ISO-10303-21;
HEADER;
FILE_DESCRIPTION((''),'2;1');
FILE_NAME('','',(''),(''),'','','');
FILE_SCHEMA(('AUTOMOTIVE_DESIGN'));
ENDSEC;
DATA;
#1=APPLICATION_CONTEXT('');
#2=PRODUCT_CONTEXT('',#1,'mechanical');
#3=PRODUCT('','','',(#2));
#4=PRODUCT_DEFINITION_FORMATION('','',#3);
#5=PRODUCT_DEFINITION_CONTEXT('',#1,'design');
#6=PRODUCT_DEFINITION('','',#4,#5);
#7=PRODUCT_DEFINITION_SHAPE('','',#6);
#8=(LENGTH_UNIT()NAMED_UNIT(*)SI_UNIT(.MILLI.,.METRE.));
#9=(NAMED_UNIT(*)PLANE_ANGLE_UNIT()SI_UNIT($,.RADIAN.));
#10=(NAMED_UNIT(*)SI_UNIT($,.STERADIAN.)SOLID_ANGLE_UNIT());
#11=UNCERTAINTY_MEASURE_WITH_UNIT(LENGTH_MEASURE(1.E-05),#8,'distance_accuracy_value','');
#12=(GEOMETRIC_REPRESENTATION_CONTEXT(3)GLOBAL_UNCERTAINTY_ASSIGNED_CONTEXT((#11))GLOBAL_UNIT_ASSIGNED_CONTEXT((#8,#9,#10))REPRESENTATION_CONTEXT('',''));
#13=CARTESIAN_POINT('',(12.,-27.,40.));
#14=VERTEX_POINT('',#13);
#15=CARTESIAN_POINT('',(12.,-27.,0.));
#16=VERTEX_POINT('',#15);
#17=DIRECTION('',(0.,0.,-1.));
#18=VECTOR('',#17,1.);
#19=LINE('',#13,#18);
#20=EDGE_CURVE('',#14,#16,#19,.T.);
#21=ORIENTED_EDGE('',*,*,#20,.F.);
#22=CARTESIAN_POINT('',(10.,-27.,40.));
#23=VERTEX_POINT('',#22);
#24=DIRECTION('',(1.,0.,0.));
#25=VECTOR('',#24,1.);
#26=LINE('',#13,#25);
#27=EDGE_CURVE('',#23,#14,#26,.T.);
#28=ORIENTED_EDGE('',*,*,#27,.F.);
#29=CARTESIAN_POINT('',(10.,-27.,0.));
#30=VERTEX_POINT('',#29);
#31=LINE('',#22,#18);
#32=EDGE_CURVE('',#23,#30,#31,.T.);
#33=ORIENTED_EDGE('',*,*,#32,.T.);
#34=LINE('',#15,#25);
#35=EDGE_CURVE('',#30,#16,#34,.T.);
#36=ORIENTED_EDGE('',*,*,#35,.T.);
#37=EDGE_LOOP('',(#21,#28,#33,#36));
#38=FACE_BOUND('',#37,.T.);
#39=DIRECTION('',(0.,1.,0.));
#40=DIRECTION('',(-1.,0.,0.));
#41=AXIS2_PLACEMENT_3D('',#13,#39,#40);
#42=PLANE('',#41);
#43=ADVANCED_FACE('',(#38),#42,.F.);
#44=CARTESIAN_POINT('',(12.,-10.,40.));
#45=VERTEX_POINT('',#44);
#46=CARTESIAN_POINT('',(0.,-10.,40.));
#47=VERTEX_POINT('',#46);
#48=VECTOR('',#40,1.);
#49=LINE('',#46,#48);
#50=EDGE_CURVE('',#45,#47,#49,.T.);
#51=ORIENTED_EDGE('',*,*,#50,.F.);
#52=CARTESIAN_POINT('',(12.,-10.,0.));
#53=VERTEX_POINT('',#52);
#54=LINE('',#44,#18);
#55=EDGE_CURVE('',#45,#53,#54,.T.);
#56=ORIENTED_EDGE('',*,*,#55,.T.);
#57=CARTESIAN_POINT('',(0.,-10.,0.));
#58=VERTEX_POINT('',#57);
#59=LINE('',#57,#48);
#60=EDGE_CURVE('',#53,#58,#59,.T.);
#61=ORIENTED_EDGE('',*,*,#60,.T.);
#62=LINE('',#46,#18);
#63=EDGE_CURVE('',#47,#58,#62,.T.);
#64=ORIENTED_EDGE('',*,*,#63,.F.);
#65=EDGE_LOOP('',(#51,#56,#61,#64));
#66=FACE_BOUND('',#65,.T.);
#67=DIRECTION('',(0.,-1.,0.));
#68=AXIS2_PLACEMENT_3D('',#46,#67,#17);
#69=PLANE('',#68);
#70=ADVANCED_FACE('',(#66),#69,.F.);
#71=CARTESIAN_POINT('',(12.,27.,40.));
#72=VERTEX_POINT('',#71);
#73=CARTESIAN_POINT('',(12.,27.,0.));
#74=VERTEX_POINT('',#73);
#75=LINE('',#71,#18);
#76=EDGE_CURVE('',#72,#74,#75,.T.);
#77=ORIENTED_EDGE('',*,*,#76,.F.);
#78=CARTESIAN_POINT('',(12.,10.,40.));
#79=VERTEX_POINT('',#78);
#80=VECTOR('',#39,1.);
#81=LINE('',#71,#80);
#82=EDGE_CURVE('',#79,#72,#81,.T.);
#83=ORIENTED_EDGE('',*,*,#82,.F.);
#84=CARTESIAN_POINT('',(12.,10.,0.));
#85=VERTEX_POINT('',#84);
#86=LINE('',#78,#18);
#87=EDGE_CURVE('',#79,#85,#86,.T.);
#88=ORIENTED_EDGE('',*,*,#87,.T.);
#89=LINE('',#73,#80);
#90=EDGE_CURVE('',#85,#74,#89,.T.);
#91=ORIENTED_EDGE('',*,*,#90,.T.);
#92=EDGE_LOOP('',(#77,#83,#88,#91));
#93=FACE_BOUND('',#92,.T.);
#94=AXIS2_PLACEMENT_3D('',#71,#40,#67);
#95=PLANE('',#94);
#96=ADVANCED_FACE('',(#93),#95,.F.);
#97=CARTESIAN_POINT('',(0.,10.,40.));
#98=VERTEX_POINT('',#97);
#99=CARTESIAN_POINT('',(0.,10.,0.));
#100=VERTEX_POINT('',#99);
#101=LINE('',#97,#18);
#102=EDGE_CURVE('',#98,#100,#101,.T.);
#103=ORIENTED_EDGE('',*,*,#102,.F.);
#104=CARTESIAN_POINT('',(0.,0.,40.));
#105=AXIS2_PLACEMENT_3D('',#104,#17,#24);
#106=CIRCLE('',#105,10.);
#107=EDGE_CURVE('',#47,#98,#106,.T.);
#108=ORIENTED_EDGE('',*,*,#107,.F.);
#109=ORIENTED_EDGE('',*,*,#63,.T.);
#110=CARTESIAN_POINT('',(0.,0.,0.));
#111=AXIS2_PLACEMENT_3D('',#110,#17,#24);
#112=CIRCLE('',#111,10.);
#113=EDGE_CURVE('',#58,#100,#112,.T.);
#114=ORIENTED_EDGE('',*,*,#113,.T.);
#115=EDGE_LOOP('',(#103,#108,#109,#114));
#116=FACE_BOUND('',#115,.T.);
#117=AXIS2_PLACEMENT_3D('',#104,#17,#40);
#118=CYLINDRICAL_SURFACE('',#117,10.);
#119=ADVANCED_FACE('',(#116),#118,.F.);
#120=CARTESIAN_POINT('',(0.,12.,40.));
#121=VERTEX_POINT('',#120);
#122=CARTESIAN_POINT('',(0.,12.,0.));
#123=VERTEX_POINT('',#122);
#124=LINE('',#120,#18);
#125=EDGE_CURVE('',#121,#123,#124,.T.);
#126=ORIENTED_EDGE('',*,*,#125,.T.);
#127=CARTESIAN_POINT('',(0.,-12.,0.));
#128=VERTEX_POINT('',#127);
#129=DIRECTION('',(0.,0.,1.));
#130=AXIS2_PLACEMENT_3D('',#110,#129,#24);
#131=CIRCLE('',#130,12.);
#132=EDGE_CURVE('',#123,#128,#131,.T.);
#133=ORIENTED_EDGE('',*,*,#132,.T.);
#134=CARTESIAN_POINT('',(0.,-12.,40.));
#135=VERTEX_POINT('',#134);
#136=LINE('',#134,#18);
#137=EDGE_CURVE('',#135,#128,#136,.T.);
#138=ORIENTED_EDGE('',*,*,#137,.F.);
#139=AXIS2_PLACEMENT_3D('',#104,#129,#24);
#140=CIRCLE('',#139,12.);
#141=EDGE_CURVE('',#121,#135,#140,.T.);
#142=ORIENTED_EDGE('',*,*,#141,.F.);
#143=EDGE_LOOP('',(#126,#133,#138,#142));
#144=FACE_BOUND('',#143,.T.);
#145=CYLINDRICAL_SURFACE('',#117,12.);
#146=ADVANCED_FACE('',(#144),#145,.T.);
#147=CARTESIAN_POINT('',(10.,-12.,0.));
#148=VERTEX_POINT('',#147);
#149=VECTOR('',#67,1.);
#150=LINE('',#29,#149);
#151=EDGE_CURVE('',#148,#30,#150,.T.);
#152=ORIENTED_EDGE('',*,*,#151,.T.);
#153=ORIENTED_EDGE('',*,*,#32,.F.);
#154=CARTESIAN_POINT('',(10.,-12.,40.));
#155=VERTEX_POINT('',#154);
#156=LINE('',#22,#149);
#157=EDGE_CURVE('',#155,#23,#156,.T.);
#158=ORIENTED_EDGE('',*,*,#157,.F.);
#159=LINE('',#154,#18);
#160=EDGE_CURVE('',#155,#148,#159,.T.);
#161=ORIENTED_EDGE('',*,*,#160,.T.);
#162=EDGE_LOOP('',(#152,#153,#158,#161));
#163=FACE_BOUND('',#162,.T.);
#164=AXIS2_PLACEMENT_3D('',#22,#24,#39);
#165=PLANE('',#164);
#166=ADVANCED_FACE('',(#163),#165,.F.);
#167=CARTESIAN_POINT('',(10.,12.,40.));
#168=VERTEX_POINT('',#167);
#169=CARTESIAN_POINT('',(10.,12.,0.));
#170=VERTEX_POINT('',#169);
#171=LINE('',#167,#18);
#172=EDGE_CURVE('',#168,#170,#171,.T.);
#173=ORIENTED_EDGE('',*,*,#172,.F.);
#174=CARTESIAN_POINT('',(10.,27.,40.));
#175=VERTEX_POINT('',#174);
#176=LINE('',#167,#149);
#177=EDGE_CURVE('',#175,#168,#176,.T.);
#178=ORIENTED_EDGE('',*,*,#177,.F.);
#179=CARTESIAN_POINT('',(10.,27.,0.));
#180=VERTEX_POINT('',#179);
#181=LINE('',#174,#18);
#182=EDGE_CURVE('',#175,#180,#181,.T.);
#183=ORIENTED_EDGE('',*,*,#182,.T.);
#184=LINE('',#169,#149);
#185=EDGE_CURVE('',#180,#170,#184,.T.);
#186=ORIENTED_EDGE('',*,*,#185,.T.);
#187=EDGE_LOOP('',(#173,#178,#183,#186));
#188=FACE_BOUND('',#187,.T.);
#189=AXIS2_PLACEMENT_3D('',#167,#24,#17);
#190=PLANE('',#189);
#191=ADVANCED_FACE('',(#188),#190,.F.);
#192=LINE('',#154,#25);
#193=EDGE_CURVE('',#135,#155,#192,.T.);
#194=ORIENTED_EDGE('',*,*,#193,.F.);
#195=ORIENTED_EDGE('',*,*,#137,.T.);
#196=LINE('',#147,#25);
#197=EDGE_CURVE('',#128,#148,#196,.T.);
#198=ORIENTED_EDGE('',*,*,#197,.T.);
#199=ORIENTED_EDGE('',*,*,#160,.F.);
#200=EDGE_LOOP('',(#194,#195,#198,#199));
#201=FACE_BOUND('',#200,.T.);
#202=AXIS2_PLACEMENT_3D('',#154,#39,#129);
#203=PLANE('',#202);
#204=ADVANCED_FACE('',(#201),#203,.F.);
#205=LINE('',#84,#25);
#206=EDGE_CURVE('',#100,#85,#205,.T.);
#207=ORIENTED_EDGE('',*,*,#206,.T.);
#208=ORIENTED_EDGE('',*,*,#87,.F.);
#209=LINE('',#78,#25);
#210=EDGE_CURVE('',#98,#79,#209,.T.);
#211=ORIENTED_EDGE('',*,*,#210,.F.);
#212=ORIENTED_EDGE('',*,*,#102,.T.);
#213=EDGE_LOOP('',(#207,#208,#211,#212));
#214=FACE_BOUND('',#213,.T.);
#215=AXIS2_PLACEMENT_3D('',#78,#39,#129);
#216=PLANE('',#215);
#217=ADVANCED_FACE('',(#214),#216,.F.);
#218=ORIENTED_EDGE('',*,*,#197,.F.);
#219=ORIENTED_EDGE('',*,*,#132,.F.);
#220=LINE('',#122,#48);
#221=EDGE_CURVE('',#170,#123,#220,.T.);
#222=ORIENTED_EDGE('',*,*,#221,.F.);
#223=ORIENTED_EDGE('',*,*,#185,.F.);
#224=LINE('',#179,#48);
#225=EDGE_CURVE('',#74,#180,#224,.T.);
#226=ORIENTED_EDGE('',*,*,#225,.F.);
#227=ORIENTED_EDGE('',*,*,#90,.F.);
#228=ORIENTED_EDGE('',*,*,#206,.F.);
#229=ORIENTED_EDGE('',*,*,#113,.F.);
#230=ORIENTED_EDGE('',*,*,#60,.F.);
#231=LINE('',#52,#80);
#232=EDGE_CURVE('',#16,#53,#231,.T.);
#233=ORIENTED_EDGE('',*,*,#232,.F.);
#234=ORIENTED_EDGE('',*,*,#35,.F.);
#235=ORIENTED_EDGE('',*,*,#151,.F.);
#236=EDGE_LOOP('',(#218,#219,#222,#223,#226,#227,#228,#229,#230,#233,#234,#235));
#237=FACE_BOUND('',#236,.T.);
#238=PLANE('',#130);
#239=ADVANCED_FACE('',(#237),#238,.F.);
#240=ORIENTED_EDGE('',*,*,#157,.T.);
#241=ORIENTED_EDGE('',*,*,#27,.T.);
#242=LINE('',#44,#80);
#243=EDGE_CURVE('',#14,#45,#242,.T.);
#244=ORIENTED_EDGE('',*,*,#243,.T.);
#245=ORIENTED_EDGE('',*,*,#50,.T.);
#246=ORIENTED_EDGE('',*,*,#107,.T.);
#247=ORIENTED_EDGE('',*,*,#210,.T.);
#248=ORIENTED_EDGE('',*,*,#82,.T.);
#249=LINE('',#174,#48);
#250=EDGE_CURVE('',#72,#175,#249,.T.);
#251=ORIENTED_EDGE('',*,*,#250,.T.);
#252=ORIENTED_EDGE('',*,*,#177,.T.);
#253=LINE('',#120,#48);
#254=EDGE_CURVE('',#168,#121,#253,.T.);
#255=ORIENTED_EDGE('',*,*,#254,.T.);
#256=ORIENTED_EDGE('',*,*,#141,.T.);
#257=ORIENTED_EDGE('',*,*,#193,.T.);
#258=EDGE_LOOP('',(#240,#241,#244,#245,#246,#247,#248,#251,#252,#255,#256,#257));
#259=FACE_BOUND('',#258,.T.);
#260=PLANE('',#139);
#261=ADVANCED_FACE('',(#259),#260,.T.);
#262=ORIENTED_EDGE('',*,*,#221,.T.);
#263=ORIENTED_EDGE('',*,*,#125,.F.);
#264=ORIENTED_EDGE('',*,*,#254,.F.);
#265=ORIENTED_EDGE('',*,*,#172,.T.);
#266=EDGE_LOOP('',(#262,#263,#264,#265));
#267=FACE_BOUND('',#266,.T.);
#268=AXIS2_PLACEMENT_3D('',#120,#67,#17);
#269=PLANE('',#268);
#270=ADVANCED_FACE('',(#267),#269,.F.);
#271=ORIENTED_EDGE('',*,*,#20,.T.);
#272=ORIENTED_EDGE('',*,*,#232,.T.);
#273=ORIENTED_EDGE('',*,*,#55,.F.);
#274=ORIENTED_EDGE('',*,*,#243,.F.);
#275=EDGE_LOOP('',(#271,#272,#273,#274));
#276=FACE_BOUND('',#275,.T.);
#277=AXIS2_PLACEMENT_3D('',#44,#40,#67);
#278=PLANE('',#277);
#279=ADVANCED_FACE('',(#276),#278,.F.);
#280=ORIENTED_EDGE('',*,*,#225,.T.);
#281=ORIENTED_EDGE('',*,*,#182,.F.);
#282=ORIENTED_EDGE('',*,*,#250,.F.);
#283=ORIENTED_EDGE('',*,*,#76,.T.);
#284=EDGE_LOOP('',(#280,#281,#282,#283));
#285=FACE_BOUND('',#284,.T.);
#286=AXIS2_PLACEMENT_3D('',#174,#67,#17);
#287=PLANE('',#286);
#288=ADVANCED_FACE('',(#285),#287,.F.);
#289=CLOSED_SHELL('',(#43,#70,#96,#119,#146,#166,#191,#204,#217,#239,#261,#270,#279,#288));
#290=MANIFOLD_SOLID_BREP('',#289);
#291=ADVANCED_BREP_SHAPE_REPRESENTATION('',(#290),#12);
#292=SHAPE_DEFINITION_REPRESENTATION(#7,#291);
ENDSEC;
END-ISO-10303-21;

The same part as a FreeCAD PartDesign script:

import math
import FreeCAD as App
import Part
import Sketcher

doc = App.newDocument("Part")
body = doc.addObject("PartDesign::Body", "Body")

# Sketch on XY plane
sketch1 = body.newObject("Sketcher::SketchObject", "Sketch")
sketch1.AttachmentSupport = (doc.getObject("XY_Plane"), [""])
sketch1.MapMode = "FlatFace"
sketch1.addGeometry(Part.LineSegment(App.Vector(10, 12, 0), App.Vector(0, 12, 0)), False)
sketch1.addGeometry(Part.ArcOfCircle(Part.Circle(App.Vector(0, 0, 0), App.Vector(0, 0, 1), 12), math.radians(90), math.radians(270)), False)
sketch1.addGeometry(Part.LineSegment(App.Vector(0, -12, 0), App.Vector(10, -12, 0)), False)
sketch1.addGeometry(Part.LineSegment(App.Vector(10, -12, 0), App.Vector(10, -27, 0)), False)
sketch1.addGeometry(Part.LineSegment(App.Vector(10, -27, 0), App.Vector(12, -27, 0)), False)
sketch1.addGeometry(Part.LineSegment(App.Vector(12, -27, 0), App.Vector(12, -10, 0)), False)
sketch1.addGeometry(Part.LineSegment(App.Vector(12, -10, 0), App.Vector(0, -10, 0)), False)
sketch1.addGeometry(Part.ArcOfCircle(Part.Circle(App.Vector(0, 0, 0), App.Vector(0, 0, 1), 10), math.radians(90), math.radians(270)), False)
sketch1.addGeometry(Part.LineSegment(App.Vector(0, 10, 0), App.Vector(12, 10, 0)), False)
sketch1.addGeometry(Part.LineSegment(App.Vector(12, 10, 0), App.Vector(12, 27, 0)), False)
sketch1.addGeometry(Part.LineSegment(App.Vector(12, 27, 0), App.Vector(10, 27, 0)), False)
sketch1.addGeometry(Part.LineSegment(App.Vector(10, 27, 0), App.Vector(10, 12, 0)), False)
sketch1.addConstraint(Sketcher.Constraint("Tangent", 0, 2, 1, 1))
sketch1.addConstraint(Sketcher.Constraint("Tangent", 1, 2, 2, 1))
sketch1.addConstraint(Sketcher.Constraint("Coincident", 2, 2, 3, 1))
sketch1.addConstraint(Sketcher.Constraint("Coincident", 3, 2, 4, 1))
sketch1.addConstraint(Sketcher.Constraint("Coincident", 4, 2, 5, 1))
sketch1.addConstraint(Sketcher.Constraint("Coincident", 5, 2, 6, 1))
sketch1.addConstraint(Sketcher.Constraint("Tangent", 6, 2, 7, 2))
sketch1.addConstraint(Sketcher.Constraint("Tangent", 7, 1, 8, 1))
sketch1.addConstraint(Sketcher.Constraint("Coincident", 8, 2, 9, 1))
sketch1.addConstraint(Sketcher.Constraint("Coincident", 9, 2, 10, 1))
sketch1.addConstraint(Sketcher.Constraint("Coincident", 10, 2, 11, 1))
sketch1.addConstraint(Sketcher.Constraint("Coincident", 11, 2, 0, 1))
sketch1.addConstraint(Sketcher.Constraint("Horizontal", 0))
sketch1.addConstraint(Sketcher.Constraint("Horizontal", 2))
sketch1.addConstraint(Sketcher.Constraint("Vertical", 3))
sketch1.addConstraint(Sketcher.Constraint("Horizontal", 4))
sketch1.addConstraint(Sketcher.Constraint("Vertical", 5))
sketch1.addConstraint(Sketcher.Constraint("Horizontal", 6))
sketch1.addConstraint(Sketcher.Constraint("Horizontal", 8))
sketch1.addConstraint(Sketcher.Constraint("Vertical", 9))
sketch1.addConstraint(Sketcher.Constraint("Horizontal", 10))
sketch1.addConstraint(Sketcher.Constraint("Vertical", 11))
sketch1.addConstraint(Sketcher.Constraint("Coincident", 1, 3, -1, 1))
sketch1.addConstraint(Sketcher.Constraint("Coincident", 7, 3, -1, 1))
sketch1.addConstraint(Sketcher.Constraint("Symmetric", 4, 2, 9, 2, -1))
sketch1.addConstraint(Sketcher.Constraint("Vertical", 3, 2, 10, 2))
sketch1.addConstraint(Sketcher.Constraint("Radius", 1, 12.0))
sketch1.addConstraint(Sketcher.Constraint("Radius", 7, 10.0))
sketch1.addConstraint(Sketcher.Constraint("DistanceX", 0, 2, 0, 1, 10.0))
sketch1.addConstraint(Sketcher.Constraint("DistanceX", 4, 1, 4, 2, 2.0))
sketch1.addConstraint(Sketcher.Constraint("DistanceY", 3, 2, 3, 1, 15.0))
pad1 = body.newObject("PartDesign::Pad", "Pad")
pad1.Profile = sketch1
pad1.Length = 40

doc.recompute()
